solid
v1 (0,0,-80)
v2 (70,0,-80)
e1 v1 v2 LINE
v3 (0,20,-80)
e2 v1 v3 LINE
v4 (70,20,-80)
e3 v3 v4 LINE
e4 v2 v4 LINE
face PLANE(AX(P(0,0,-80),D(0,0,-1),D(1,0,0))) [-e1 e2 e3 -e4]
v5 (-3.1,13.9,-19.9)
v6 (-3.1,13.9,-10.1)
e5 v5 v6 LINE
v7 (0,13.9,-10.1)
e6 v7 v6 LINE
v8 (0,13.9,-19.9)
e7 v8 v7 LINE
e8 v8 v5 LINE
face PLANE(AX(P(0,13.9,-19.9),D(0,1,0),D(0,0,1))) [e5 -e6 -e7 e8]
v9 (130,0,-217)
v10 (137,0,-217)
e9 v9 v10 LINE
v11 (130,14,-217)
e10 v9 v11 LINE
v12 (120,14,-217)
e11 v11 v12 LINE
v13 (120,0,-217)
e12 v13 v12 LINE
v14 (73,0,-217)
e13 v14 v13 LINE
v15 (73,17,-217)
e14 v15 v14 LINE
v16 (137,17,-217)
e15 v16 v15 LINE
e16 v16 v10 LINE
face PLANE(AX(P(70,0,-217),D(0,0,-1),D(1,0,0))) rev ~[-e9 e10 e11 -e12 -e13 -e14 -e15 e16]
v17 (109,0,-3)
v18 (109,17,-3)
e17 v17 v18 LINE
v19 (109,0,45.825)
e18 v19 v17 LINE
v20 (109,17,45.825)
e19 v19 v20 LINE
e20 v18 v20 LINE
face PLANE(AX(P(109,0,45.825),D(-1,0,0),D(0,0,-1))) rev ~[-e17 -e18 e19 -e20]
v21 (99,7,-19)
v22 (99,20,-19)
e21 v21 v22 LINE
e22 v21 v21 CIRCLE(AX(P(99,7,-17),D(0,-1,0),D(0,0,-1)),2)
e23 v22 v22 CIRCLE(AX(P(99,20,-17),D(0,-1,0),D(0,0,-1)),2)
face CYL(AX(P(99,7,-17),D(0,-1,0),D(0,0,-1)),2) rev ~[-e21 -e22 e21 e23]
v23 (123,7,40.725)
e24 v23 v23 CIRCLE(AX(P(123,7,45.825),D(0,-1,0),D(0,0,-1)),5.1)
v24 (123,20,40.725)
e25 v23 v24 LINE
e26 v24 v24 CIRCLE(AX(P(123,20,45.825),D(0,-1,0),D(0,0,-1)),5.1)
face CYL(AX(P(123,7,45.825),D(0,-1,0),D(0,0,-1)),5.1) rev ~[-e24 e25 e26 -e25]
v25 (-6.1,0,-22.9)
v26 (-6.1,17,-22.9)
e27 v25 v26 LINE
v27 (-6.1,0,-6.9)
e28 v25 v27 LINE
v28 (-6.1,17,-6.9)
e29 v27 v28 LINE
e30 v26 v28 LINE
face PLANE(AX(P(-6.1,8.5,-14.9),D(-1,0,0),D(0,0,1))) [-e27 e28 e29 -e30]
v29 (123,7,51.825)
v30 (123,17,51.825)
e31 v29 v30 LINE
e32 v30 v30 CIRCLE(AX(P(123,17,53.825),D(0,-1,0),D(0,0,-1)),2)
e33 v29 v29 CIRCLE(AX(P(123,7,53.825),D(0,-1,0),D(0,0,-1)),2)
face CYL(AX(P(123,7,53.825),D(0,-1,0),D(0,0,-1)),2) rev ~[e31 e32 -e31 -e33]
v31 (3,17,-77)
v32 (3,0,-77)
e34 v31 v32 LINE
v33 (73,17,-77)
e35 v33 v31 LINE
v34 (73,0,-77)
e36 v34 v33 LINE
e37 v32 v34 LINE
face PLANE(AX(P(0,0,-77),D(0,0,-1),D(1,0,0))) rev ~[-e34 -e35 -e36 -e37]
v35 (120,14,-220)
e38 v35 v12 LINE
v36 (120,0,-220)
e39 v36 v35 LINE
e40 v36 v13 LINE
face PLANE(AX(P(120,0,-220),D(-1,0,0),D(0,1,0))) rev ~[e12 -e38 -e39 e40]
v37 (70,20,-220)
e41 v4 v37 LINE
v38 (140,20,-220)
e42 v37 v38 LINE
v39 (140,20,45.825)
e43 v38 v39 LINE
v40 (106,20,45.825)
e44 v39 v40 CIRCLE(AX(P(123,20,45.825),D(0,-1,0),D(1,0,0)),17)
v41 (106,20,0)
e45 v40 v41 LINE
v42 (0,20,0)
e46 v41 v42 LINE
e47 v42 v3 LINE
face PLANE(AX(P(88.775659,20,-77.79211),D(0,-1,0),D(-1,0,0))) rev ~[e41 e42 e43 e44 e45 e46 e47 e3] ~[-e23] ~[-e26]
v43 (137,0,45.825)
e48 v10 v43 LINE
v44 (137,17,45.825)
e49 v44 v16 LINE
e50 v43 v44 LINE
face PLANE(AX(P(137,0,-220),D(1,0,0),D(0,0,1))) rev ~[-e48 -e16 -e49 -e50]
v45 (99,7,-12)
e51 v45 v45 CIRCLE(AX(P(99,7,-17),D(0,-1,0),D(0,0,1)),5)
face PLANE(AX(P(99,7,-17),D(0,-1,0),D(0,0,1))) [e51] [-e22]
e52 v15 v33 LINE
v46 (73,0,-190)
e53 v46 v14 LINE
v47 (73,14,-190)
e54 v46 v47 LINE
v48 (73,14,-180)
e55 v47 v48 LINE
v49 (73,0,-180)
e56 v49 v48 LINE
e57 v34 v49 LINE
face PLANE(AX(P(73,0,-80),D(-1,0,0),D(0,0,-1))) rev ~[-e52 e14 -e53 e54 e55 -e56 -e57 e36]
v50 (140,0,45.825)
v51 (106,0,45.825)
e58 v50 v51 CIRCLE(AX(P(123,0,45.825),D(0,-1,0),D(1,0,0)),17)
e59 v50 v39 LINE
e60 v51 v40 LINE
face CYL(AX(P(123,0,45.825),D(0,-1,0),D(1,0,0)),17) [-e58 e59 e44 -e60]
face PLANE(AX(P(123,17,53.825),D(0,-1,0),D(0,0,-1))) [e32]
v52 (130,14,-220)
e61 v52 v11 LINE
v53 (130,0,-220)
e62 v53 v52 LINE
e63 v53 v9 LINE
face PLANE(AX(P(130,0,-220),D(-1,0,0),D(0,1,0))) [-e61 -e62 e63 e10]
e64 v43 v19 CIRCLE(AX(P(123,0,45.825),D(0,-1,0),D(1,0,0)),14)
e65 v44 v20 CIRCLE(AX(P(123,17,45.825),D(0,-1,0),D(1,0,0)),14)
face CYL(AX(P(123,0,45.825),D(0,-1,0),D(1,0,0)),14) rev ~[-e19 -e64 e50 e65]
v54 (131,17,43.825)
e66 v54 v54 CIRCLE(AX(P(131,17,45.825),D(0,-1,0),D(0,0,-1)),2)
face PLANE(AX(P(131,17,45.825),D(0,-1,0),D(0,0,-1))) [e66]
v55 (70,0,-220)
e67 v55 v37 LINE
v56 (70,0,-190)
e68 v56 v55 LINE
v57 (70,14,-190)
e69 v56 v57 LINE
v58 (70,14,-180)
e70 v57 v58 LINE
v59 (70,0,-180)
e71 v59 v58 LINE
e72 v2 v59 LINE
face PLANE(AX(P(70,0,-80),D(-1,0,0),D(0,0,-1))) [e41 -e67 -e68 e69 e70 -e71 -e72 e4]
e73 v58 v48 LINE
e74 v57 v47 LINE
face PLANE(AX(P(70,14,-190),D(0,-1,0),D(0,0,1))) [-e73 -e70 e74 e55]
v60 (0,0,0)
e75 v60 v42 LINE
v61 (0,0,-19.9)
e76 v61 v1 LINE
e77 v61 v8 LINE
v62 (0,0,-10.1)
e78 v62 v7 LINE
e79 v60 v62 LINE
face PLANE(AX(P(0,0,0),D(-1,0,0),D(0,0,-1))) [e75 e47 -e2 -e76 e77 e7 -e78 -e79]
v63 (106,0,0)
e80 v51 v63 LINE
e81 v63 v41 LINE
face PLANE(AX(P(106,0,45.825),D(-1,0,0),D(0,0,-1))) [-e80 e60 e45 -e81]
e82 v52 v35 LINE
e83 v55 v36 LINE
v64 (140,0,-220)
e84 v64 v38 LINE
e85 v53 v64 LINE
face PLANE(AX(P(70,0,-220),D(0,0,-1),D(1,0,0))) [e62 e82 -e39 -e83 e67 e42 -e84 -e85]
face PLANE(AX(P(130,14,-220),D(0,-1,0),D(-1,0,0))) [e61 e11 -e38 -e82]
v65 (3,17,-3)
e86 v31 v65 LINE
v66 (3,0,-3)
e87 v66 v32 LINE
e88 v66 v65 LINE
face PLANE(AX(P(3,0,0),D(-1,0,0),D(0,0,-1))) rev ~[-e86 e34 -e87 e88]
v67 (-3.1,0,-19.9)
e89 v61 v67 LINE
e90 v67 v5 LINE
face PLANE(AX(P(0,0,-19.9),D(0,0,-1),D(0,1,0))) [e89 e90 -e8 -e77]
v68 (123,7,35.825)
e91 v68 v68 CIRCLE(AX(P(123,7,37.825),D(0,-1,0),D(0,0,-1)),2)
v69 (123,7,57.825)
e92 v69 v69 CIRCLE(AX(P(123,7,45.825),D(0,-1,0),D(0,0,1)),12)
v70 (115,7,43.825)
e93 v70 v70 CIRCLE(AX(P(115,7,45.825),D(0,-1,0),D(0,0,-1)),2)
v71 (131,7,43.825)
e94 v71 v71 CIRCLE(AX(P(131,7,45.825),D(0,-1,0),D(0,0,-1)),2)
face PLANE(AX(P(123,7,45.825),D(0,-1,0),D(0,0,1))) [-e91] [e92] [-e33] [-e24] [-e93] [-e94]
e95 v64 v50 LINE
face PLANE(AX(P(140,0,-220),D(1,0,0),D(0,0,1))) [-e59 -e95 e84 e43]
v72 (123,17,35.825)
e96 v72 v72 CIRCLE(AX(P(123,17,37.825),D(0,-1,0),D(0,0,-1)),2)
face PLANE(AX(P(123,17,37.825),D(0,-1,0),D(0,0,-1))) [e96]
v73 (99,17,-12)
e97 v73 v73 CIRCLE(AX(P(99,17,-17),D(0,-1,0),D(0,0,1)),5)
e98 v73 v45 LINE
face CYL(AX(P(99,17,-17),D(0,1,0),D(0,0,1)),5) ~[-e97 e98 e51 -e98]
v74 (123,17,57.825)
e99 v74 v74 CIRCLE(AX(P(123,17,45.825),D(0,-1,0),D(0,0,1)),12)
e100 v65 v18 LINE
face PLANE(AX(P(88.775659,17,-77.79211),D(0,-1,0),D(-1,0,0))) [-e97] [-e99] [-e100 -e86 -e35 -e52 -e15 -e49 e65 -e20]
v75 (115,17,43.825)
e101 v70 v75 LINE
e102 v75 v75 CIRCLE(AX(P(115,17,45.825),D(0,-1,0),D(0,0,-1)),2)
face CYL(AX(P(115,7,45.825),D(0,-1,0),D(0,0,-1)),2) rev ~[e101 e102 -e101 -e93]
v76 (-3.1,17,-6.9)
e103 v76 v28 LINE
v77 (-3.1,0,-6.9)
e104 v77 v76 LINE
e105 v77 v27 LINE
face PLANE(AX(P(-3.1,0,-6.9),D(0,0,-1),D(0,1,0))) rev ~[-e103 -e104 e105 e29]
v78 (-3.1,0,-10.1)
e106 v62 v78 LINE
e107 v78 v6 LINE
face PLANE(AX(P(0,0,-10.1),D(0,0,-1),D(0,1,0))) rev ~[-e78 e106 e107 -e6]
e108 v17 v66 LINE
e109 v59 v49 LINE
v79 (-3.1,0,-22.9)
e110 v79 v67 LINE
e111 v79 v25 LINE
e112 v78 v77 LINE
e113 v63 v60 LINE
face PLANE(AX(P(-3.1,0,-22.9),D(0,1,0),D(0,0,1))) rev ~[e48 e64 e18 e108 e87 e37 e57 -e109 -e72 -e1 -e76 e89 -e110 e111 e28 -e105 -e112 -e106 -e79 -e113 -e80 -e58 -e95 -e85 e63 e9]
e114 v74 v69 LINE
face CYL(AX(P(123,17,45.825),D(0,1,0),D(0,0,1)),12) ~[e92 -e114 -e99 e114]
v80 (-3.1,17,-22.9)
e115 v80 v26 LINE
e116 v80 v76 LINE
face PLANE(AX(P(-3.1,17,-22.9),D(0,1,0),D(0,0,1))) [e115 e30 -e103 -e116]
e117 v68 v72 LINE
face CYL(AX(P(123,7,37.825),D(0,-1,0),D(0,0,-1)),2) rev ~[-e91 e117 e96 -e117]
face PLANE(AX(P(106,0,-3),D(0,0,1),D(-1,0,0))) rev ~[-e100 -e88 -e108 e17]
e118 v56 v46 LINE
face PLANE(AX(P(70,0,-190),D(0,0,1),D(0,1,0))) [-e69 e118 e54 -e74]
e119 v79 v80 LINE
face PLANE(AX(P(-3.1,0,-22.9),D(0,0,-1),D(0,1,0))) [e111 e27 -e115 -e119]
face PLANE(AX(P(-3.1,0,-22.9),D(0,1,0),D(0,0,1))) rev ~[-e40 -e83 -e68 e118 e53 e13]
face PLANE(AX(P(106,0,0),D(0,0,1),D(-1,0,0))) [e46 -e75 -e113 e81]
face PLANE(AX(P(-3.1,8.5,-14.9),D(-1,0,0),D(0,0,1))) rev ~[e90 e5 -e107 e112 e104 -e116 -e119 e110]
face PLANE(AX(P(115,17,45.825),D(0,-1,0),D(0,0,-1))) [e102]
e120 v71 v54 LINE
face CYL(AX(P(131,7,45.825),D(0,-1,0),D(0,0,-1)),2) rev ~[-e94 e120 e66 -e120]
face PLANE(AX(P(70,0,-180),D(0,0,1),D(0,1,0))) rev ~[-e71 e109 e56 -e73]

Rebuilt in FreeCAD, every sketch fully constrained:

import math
import FreeCAD as App
import Part
import Sketcher

V = App.Vector


def faces_at(feature, points):
    """Names of the faces that lie closest to the given points."""
    faces = feature.Shape.Faces
    near = lambda p: min(range(len(faces)), key=lambda i: faces[i].distToShape(Part.Vertex(*p))[0])
    return sorted({f"Face{near(p) + 1}" for p in points})

doc = App.newDocument("Part")
params = doc.addObject("Spreadsheet::Sheet", "Params")
for row, (alias, value) in enumerate([
    ("sketch1_radius", "17 mm"),
    ("sketch1_width", "106 mm"),
    ("sketch1_height", "80 mm"),
    ("sketch1_height2", "140 mm"),
    ("pad1_length", "20 mm"),
    ("thickness_wall", "3 mm"),
    ("sketch2_diameter", "10 mm"),
    ("sketch2_diameter2", "24 mm"),
    ("pad2_length", "10 mm"),
    ("sketch3_diameter", "4 mm"),
    ("sketch3_diameter2", "10.2 mm"),
    ("sketch4_diameter", "4 mm"),
    ("pocket2_length", "10 mm"),
    ("sketch5_width", "10 mm"),
    ("sketch5_height", "14 mm"),
    ("pocket3_length", "3 mm"),
    ("sketch6_width", "13.9 mm"),
    ("sketch6_height", "9.8 mm"),
    ("pad3_length", "3.1 mm"),
    ("sketch7_width", "17 mm"),
    ("sketch7_height", "16 mm"),
    ("pad4_length", "3 mm"),
    ("sketch8_width", "14 mm"),
    ("sketch8_height", "10 mm"),
    ("pocket4_length", "3 mm"),
], start=1):
    params.set(f"A{row}", alias)
    params.set(f"B{row}", "=" + value)
    params.setAlias(f"B{row}", alias)

body = doc.addObject("PartDesign::Body", "Body")

# Sketch on XZ plane
sketch1 = doc.addObject("Sketcher::SketchObject", "Sketch")
body.addObject(sketch1)
sketch1.AttachmentSupport = (doc.XZ_Plane, [""])
sketch1.MapMode = "FlatFace"
sketch1.addGeometry(Part.LineSegment(V(0, -80, 0), V(0, 0, 0)), False)
sketch1.addGeometry(Part.LineSegment(V(0, 0, 0), V(106, 0, 0)), False)
sketch1.addGeometry(Part.LineSegment(V(106, 0, 0), V(106, 45.825, 0)), False)
sketch1.addGeometry(Part.ArcOfCircle(Part.Circle(V(123, 45.825, 0), V(0, 0, 1), 17), math.radians(0), math.radians(180)), False)
sketch1.addGeometry(Part.LineSegment(V(140, 45.825, 0), V(140, -220, 0)), False)
sketch1.addGeometry(Part.LineSegment(V(140, -220, 0), V(70, -220, 0)), False)
sketch1.addGeometry(Part.LineSegment(V(70, -220, 0), V(70, -80, 0)), False)
sketch1.addGeometry(Part.LineSegment(V(70, -80, 0), V(0, -80, 0)), False)
sketch1.addConstraint(Sketcher.Constraint("Coincident", 0, 2, 1, 1))
sketch1.addConstraint(Sketcher.Constraint("Coincident", 1, 2, 2, 1))
sketch1.addConstraint(Sketcher.Constraint("Tangent", 2, 2, 3, 2))
sketch1.addConstraint(Sketcher.Constraint("Tangent", 3, 1, 4, 1))
sketch1.addConstraint(Sketcher.Constraint("Coincident", 4, 2, 5, 1))
sketch1.addConstraint(Sketcher.Constraint("Coincident", 5, 2, 6, 1))
sketch1.addConstraint(Sketcher.Constraint("Coincident", 6, 2, 7, 1))
sketch1.addConstraint(Sketcher.Constraint("Coincident", 7, 2, 0, 1))
sketch1.addConstraint(Sketcher.Constraint("Vertical", 0))
sketch1.addConstraint(Sketcher.Constraint("Horizontal", 1))
sketch1.addConstraint(Sketcher.Constraint("Vertical", 2))
sketch1.addConstraint(Sketcher.Constraint("Vertical", 4))
sketch1.addConstraint(Sketcher.Constraint("Horizontal", 5))
sketch1.addConstraint(Sketcher.Constraint("Vertical", 6))
sketch1.addConstraint(Sketcher.Constraint("Horizontal", 7))
sketch1.addConstraint(Sketcher.Constraint("Coincident", 0, 2, -1, 1))
sketch1.addConstraint(Sketcher.Constraint("Equal", 5, 7))
sketch1.addConstraint(Sketcher.Constraint("Radius", 3, 17.0))
sketch1.addConstraint(Sketcher.Constraint("DistanceX", 1, 1, 1, 2, 106.0))
sketch1.addConstraint(Sketcher.Constraint("DistanceY", 0, 1, 0, 2, 80.0))
sketch1.addConstraint(Sketcher.Constraint("DistanceY", 6, 1, 6, 2, 140.0))
sketch1.addConstraint(Sketcher.Constraint("DistanceY", 2, 1, 2, 2, 45.825))
sketch1.setExpression("Constraints[17]", "Params.sketch1_radius")
sketch1.setExpression("Constraints[18]", "Params.sketch1_width")
sketch1.setExpression("Constraints[19]", "Params.sketch1_height")
sketch1.setExpression("Constraints[20]", "Params.sketch1_height2")
pad1 = doc.addObject("PartDesign::Pad", "Pad")
body.addObject(pad1)
pad1.Profile = sketch1
pad1.setExpression("Length", "Params.pad1_length")
pad1.Reversed = True
doc.recompute()

thickness = doc.addObject("PartDesign::Thickness", "Thickness")
body.addObject(thickness)
thickness.Base = (pad1, faces_at(pad1, [(70, 0, -78.588)]))
thickness.setExpression("Value", "Params.thickness_wall")
thickness.Reversed = True
thickness.Join = "Intersection"

# Sketch on XZ plane
sketch2 = doc.addObject("Sketcher::SketchObject", "Sketch001")
body.addObject(sketch2)
sketch2.AttachmentSupport = (doc.XZ_Plane, [""])
sketch2.MapMode = "FlatFace"
sketch2.AttachmentOffset = App.Placement(V(0, 0, -17), App.Rotation())
sketch2.addGeometry(Part.Circle(V(99, -17, 0), V(0, 0, 1), 5), False)
sketch2.addGeometry(Part.Circle(V(123, 45.825, 0), V(0, 0, 1), 12), False)
sketch2.addConstraint(Sketcher.Constraint("Diameter", 0, 10.0))
sketch2.addConstraint(Sketcher.Constraint("Diameter", 1, 24.0))
sketch2.addConstraint(Sketcher.Constraint("DistanceX", -1, 1, 0, 3, 99.0))
sketch2.addConstraint(Sketcher.Constraint("DistanceY", 0, 3, -1, 1, 17.0))
sketch2.addConstraint(Sketcher.Constraint("DistanceX", -1, 1, 1, 3, 123.0))
sketch2.addConstraint(Sketcher.Constraint("DistanceY", -1, 1, 1, 3, 45.825))
sketch2.setExpression("Constraints[0]", "Params.sketch2_diameter")
sketch2.setExpression("Constraints[1]", "Params.sketch2_diameter2")
pad2 = doc.addObject("PartDesign::Pad", "Pad001")
body.addObject(pad2)
pad2.Profile = sketch2
pad2.setExpression("Length", "Params.pad2_length")

# Sketch on XZ plane
sketch3 = doc.addObject("Sketcher::SketchObject", "Sketch002")
body.addObject(sketch3)
sketch3.AttachmentSupport = (doc.XZ_Plane, [""])
sketch3.MapMode = "FlatFace"
sketch3.AttachmentOffset = App.Placement(V(0, 0, -7), App.Rotation())
sketch3.addGeometry(Part.Circle(V(123, 45.825, 0), V(0, 0, 1), 5.1), False)
sketch3.addGeometry(Part.Circle(V(99, -17, 0), V(0, 0, 1), 2), False)
sketch3.addConstraint(Sketcher.Constraint("Diameter", 1, 4.0))
sketch3.addConstraint(Sketcher.Constraint("Diameter", 0, 10.2))
sketch3.addConstraint(Sketcher.Constraint("DistanceX", -1, 1, 0, 3, 123.0))
sketch3.addConstraint(Sketcher.Constraint("DistanceX", -1, 1, 1, 3, 99.0))
sketch3.addConstraint(Sketcher.Constraint("DistanceY", 1, 3, -1, 1, 17.0))
sketch3.addConstraint(Sketcher.Constraint("DistanceY", -1, 1, 0, 3, 45.825))
sketch3.setExpression("Constraints[0]", "Params.sketch3_diameter")
sketch3.setExpression("Constraints[1]", "Params.sketch3_diameter2")
pocket1 = doc.addObject("PartDesign::Pocket", "Pocket")
body.addObject(pocket1)
pocket1.Profile = sketch3
pocket1.Type = "ThroughAll"

# Sketch on XZ plane
sketch4 = doc.addObject("Sketcher::SketchObject", "Sketch003")
body.addObject(sketch4)
sketch4.AttachmentSupport = (doc.XZ_Plane, [""])
sketch4.MapMode = "FlatFace"
sketch4.AttachmentOffset = App.Placement(V(0, 0, -7), App.Rotation())
sketch4.addGeometry(Part.Circle(V(123, 53.825, 0), V(0, 0, 1), 2), False)
sketch4.addGeometry(Part.Circle(V(131, 45.825, 0), V(0, 0, 1), 2), False)
sketch4.addGeometry(Part.Circle(V(115, 45.825, 0), V(0, 0, 1), 2), False)
sketch4.addGeometry(Part.Circle(V(123, 37.825, 0), V(0, 0, 1), 2), False)
sketch4.addConstraint(Sketcher.Constraint("Equal", 0, 1))
sketch4.addConstraint(Sketcher.Constraint("Equal", 1, 2))
sketch4.addConstraint(Sketcher.Constraint("Equal", 2, 3))
sketch4.addConstraint(Sketcher.Constraint("Horizontal", 1, 3, 2, 3))
sketch4.addConstraint(Sketcher.Constraint("Vertical", 0, 3, 3, 3))
sketch4.addConstraint(Sketcher.Constraint("Diameter", 0, 4.0))
sketch4.addConstraint(Sketcher.Constraint("DistanceX", -1, 1, 0, 3, 123.0))
sketch4.addConstraint(Sketcher.Constraint("DistanceX", -1, 1, 1, 3, 131.0))
sketch4.addConstraint(Sketcher.Constraint("DistanceX", -1, 1, 2, 3, 115.0))
sketch4.addConstraint(Sketcher.Constraint("DistanceY", 1, 3, 0, 3, 8.0))
sketch4.addConstraint(Sketcher.Constraint("DistanceY", 3, 3, 1, 3, 8.0))
sketch4.addConstraint(Sketcher.Constraint("DistanceY", -1, 1, 0, 3, 53.825))
sketch4.setExpression("Constraints[5]", "Params.sketch4_diameter")
pocket2 = doc.addObject("PartDesign::Pocket", "Pocket001")
body.addObject(pocket2)
pocket2.Profile = sketch4
pocket2.setExpression("Length", "Params.pocket2_length")

# Sketch on XY plane
sketch5 = doc.addObject("Sketcher::SketchObject", "Sketch004")
body.addObject(sketch5)
sketch5.AttachmentSupport = (doc.XY_Plane, [""])
sketch5.MapMode = "FlatFace"
sketch5.AttachmentOffset = App.Placement(V(0, 0, -220), App.Rotation())
sketch5.addGeometry(Part.LineSegment(V(130, 14, 0), V(130, 0, 0)), False)
sketch5.addGeometry(Part.LineSegment(V(130, 0, 0), V(120, 0, 0)), False)
sketch5.addGeometry(Part.LineSegment(V(120, 0, 0), V(120, 14, 0)), False)
sketch5.addGeometry(Part.LineSegment(V(120, 14, 0), V(130, 14, 0)), False)
sketch5.addConstraint(Sketcher.Constraint("Coincident", 0, 2, 1, 1))
sketch5.addConstraint(Sketcher.Constraint("Coincident", 1, 2, 2, 1))
sketch5.addConstraint(Sketcher.Constraint("Coincident", 2, 2, 3, 1))
sketch5.addConstraint(Sketcher.Constraint("Coincident", 3, 2, 0, 1))
sketch5.addConstraint(Sketcher.Constraint("Vertical", 0))
sketch5.addConstraint(Sketcher.Constraint("Horizontal", 1))
sketch5.addConstraint(Sketcher.Constraint("Vertical", 2))
sketch5.addConstraint(Sketcher.Constraint("Horizontal", 3))
sketch5.addConstraint(Sketcher.Constraint("PointOnObject", 0, 2, -1))
sketch5.addConstraint(Sketcher.Constraint("DistanceX", 1, 2, 1, 1, 10.0))
sketch5.addConstraint(Sketcher.Constraint("DistanceY", 0, 2, 0, 1, 14.0))
sketch5.addConstraint(Sketcher.Constraint("DistanceX", -1, 1, 0, 2, 130.0))
sketch5.setExpression("Constraints[9]", "Params.sketch5_width")
sketch5.setExpression("Constraints[10]", "Params.sketch5_height")
pocket3 = doc.addObject("PartDesign::Pocket", "Pocket002")
body.addObject(pocket3)
pocket3.Profile = sketch5
pocket3.setExpression("Length", "Params.pocket3_length")
pocket3.Reversed = True

# Sketch on YZ plane
sketch6 = doc.addObject("Sketcher::SketchObject", "Sketch005")
body.addObject(sketch6)
sketch6.AttachmentSupport = (doc.YZ_Plane, [""])
sketch6.MapMode = "FlatFace"
sketch6.addGeometry(Part.LineSegment(V(13.9, -19.9, 0), V(0, -19.9, 0)), False)
sketch6.addGeometry(Part.LineSegment(V(0, -19.9, 0), V(0, -10.1, 0)), False)
sketch6.addGeometry(Part.LineSegment(V(0, -10.1, 0), V(13.9, -10.1, 0)), False)
sketch6.addGeometry(Part.LineSegment(V(13.9, -10.1, 0), V(13.9, -19.9, 0)), False)
sketch6.addConstraint(Sketcher.Constraint("Coincident", 0, 2, 1, 1))
sketch6.addConstraint(Sketcher.Constraint("Coincident", 1, 2, 2, 1))
sketch6.addConstraint(Sketcher.Constraint("Coincident", 2, 2, 3, 1))
sketch6.addConstraint(Sketcher.Constraint("Coincident", 3, 2, 0, 1))
sketch6.addConstraint(Sketcher.Constraint("Horizontal", 0))
sketch6.addConstraint(Sketcher.Constraint("Vertical", 1))
sketch6.addConstraint(Sketcher.Constraint("Horizontal", 2))
sketch6.addConstraint(Sketcher.Constraint("Vertical", 3))
sketch6.addConstraint(Sketcher.Constraint("PointOnObject", 0, 2, -2))
sketch6.addConstraint(Sketcher.Constraint("DistanceX", 0, 2, 0, 1, 13.9))
sketch6.addConstraint(Sketcher.Constraint("DistanceY", 1, 1, 1, 2, 9.8))
sketch6.addConstraint(Sketcher.Constraint("DistanceY", 0, 2, -1, 1, 19.9))
sketch6.setExpression("Constraints[9]", "Params.sketch6_width")
sketch6.setExpression("Constraints[10]", "Params.sketch6_height")
pad3 = doc.addObject("PartDesign::Pad", "Pad002")
body.addObject(pad3)
pad3.Profile = sketch6
pad3.setExpression("Length", "Params.pad3_length")
pad3.Reversed = True

# Sketch on YZ plane
sketch7 = doc.addObject("Sketcher::SketchObject", "Sketch006")
body.addObject(sketch7)
sketch7.AttachmentSupport = (doc.YZ_Plane, [""])
sketch7.MapMode = "FlatFace"
sketch7.AttachmentOffset = App.Placement(V(0, 0, -3.1), App.Rotation())
sketch7.addGeometry(Part.LineSegment(V(17, -22.9, 0), V(0, -22.9, 0)), False)
sketch7.addGeometry(Part.LineSegment(V(0, -22.9, 0), V(0, -6.9, 0)), False)
sketch7.addGeometry(Part.LineSegment(V(0, -6.9, 0), V(17, -6.9, 0)), False)
sketch7.addGeometry(Part.LineSegment(V(17, -6.9, 0), V(17, -22.9, 0)), False)
sketch7.addConstraint(Sketcher.Constraint("Coincident", 0, 2, 1, 1))
sketch7.addConstraint(Sketcher.Constraint("Coincident", 1, 2, 2, 1))
sketch7.addConstraint(Sketcher.Constraint("Coincident", 2, 2, 3, 1))
sketch7.addConstraint(Sketcher.Constraint("Coincident", 3, 2, 0, 1))
sketch7.addConstraint(Sketcher.Constraint("Horizontal", 0))
sketch7.addConstraint(Sketcher.Constraint("Vertical", 1))
sketch7.addConstraint(Sketcher.Constraint("Horizontal", 2))
sketch7.addConstraint(Sketcher.Constraint("Vertical", 3))
sketch7.addConstraint(Sketcher.Constraint("PointOnObject", 0, 2, -2))
sketch7.addConstraint(Sketcher.Constraint("DistanceX", 0, 2, 0, 1, 17.0))
sketch7.addConstraint(Sketcher.Constraint("DistanceY", 1, 1, 1, 2, 16.0))
sketch7.addConstraint(Sketcher.Constraint("DistanceY", 0, 2, -1, 1, 22.9))
sketch7.setExpression("Constraints[9]", "Params.sketch7_width")
sketch7.setExpression("Constraints[10]", "Params.sketch7_height")
pad4 = doc.addObject("PartDesign::Pad", "Pad003")
body.addObject(pad4)
pad4.Profile = sketch7
pad4.setExpression("Length", "Params.pad4_length")
pad4.Reversed = True

# Sketch on YZ plane
sketch8 = doc.addObject("Sketcher::SketchObject", "Sketch007")
body.addObject(sketch8)
sketch8.AttachmentSupport = (doc.YZ_Plane, [""])
sketch8.MapMode = "FlatFace"
sketch8.AttachmentOffset = App.Placement(V(0, 0, 70), App.Rotation())
sketch8.addGeometry(Part.LineSegment(V(14, -190, 0), V(0, -190, 0)), False)
sketch8.addGeometry(Part.LineSegment(V(0, -190, 0), V(0, -180, 0)), False)
sketch8.addGeometry(Part.LineSegment(V(0, -180, 0), V(14, -180, 0)), False)
sketch8.addGeometry(Part.LineSegment(V(14, -180, 0), V(14, -190, 0)), False)
sketch8.addConstraint(Sketcher.Constraint("Coincident", 0, 2, 1, 1))
sketch8.addConstraint(Sketcher.Constraint("Coincident", 1, 2, 2, 1))
sketch8.addConstraint(Sketcher.Constraint("Coincident", 2, 2, 3, 1))
sketch8.addConstraint(Sketcher.Constraint("Coincident", 3, 2, 0, 1))
sketch8.addConstraint(Sketcher.Constraint("Horizontal", 0))
sketch8.addConstraint(Sketcher.Constraint("Vertical", 1))
sketch8.addConstraint(Sketcher.Constraint("Horizontal", 2))
sketch8.addConstraint(Sketcher.Constraint("Vertical", 3))
sketch8.addConstraint(Sketcher.Constraint("PointOnObject", 0, 2, -2))
sketch8.addConstraint(Sketcher.Constraint("DistanceX", 0, 2, 0, 1, 14.0))
sketch8.addConstraint(Sketcher.Constraint("DistanceY", 1, 1, 1, 2, 10.0))
sketch8.addConstraint(Sketcher.Constraint("DistanceY", 0, 2, -1, 1, 190.0))
sketch8.setExpression("Constraints[9]", "Params.sketch8_width")
sketch8.setExpression("Constraints[10]", "Params.sketch8_height")
pocket4 = doc.addObject("PartDesign::Pocket", "Pocket003")
body.addObject(pocket4)
pocket4.Profile = sketch8
pocket4.setExpression("Length", "Params.pocket4_length")
pocket4.Reversed = True

doc.recompute()
